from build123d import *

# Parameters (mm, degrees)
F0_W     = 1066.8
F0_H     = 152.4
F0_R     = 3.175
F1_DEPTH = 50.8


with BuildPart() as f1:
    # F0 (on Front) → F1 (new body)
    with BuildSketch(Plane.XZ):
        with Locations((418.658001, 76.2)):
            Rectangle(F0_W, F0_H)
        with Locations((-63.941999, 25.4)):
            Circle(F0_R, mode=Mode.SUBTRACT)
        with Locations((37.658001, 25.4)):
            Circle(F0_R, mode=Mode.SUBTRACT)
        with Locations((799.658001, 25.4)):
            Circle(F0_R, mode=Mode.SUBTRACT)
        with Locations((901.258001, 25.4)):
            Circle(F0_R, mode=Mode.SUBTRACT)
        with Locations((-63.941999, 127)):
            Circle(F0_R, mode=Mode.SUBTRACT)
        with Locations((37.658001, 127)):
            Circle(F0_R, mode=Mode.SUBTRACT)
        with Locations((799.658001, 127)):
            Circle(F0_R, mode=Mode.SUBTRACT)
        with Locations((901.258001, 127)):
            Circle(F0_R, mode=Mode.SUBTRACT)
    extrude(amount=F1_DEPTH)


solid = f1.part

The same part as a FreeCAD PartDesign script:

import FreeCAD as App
import Part
import Sketcher
from FreeCAD import Vector
Q = App.Units.Quantity


def add_polygon(sketch, points):
    """Adds a closed chain of lines whose ends are joined by coincident constraints."""
    first, n = sketch.GeometryCount, len(points)
    for a, b in zip(points, points[1:] + points[:1]):
        sketch.addGeometry(Part.LineSegment(App.Vector(*a, 0), App.Vector(*b, 0)), False)
    for i in range(n):
        sketch.addConstraint(Sketcher.Constraint("Coincident", first + i, 2, first + (i + 1) % n, 1))

doc = App.newDocument("Part")
body = doc.addObject("PartDesign::Body", "Body")

# Sketch on XZ plane
sketch1 = doc.addObject("Sketcher::SketchObject", "Sketch")
body.addObject(sketch1)
sketch1.AttachmentSupport = (doc.XZ_Plane, [""])
sketch1.MapMode = "FlatFace"
add_polygon(sketch1, [(-114.7, 152.4), (-114.7, 0), (952.1, 0), (952.1, 152.4)])  # lines 0-3
sketch1.addGeometry(Part.Circle(Vector(-63.9, 25.4, 0), Vector(0, 0, 1), 3.2), False)  # 4
sketch1.addGeometry(Part.Circle(Vector(37.7, 25.4, 0), Vector(0, 0, 1), 3.2), False)  # 5
sketch1.addGeometry(Part.Circle(Vector(799.7, 25.4, 0), Vector(0, 0, 1), 3.2), False)  # 6
sketch1.addGeometry(Part.Circle(Vector(901.3, 25.4, 0), Vector(0, 0, 1), 3.2), False)  # 7
sketch1.addGeometry(Part.Circle(Vector(-63.9, 127, 0), Vector(0, 0, 1), 3.2), False)  # 8
sketch1.addGeometry(Part.Circle(Vector(37.7, 127, 0), Vector(0, 0, 1), 3.2), False)  # 9
sketch1.addGeometry(Part.Circle(Vector(799.7, 127, 0), Vector(0, 0, 1), 3.2), False)  # 10
sketch1.addGeometry(Part.Circle(Vector(901.3, 127, 0), Vector(0, 0, 1), 3.2), False)  # 11
sketch1.addConstraint([
    Sketcher.Constraint("Vertical", 0),
    Sketcher.Constraint("Horizontal", 1),
    Sketcher.Constraint("Vertical", 2),
    Sketcher.Constraint("Horizontal", 3),
    Sketcher.Constraint("Equal", 4, 5),
    Sketcher.Constraint("Equal", 5, 6),
    Sketcher.Constraint("Equal", 6, 7),
    Sketcher.Constraint("Equal", 7, 8),
    Sketcher.Constraint("Equal", 8, 9),
    Sketcher.Constraint("Equal", 9, 10),
    Sketcher.Constraint("Equal", 10, 11),
    Sketcher.Constraint("PointOnObject", 0, 2, -1),
    Sketcher.Constraint("Horizontal", 4, 3, 5, 3),
    Sketcher.Constraint("Horizontal", 5, 3, 6, 3),
    Sketcher.Constraint("Horizontal", 6, 3, 7, 3),
    Sketcher.Constraint("Horizontal", 8, 3, 9, 3),
    Sketcher.Constraint("Horizontal", 9, 3, 10, 3),
    Sketcher.Constraint("Horizontal", 10, 3, 11, 3),
    Sketcher.Constraint("Vertical", 4, 3, 8, 3),
    Sketcher.Constraint("Vertical", 5, 3, 9, 3),
    Sketcher.Constraint("Vertical", 6, 3, 10, 3),
    Sketcher.Constraint("Vertical", 7, 3, 11, 3),
    Sketcher.Constraint("Diameter", 4, Q("0.25 in")),
    Sketcher.Constraint("DistanceX", 1, 1, 1, 2, Q("42 in")),
    Sketcher.Constraint("DistanceY", 0, 2, 0, 1, Q("6 in")),
    Sketcher.Constraint("DistanceY", -1, 1, 4, 3, Q("1 in")),
    Sketcher.Constraint("DistanceY", -1, 1, 8, 3, Q("5 in")),
    Sketcher.Constraint("DistanceX", 4, 3, 5, 3, Q("4 in")),
    Sketcher.Constraint("DistanceX", 5, 3, 6, 3, Q("30 in")),
    Sketcher.Constraint("DistanceX", 6, 3, 7, 3, Q("4 in")),
    Sketcher.Constraint("DistanceX", 0, 2, 4, 3, Q("2 in")),
    Sketcher.Constraint("DistanceX", 4, 3, -1, 1, Q("63.941999 mm")),
])
pad1 = doc.addObject("PartDesign::Pad", "Pad")
body.addObject(pad1)
pad1.Profile = sketch1
pad1.Length = Q("2 in")

doc.recompute()
